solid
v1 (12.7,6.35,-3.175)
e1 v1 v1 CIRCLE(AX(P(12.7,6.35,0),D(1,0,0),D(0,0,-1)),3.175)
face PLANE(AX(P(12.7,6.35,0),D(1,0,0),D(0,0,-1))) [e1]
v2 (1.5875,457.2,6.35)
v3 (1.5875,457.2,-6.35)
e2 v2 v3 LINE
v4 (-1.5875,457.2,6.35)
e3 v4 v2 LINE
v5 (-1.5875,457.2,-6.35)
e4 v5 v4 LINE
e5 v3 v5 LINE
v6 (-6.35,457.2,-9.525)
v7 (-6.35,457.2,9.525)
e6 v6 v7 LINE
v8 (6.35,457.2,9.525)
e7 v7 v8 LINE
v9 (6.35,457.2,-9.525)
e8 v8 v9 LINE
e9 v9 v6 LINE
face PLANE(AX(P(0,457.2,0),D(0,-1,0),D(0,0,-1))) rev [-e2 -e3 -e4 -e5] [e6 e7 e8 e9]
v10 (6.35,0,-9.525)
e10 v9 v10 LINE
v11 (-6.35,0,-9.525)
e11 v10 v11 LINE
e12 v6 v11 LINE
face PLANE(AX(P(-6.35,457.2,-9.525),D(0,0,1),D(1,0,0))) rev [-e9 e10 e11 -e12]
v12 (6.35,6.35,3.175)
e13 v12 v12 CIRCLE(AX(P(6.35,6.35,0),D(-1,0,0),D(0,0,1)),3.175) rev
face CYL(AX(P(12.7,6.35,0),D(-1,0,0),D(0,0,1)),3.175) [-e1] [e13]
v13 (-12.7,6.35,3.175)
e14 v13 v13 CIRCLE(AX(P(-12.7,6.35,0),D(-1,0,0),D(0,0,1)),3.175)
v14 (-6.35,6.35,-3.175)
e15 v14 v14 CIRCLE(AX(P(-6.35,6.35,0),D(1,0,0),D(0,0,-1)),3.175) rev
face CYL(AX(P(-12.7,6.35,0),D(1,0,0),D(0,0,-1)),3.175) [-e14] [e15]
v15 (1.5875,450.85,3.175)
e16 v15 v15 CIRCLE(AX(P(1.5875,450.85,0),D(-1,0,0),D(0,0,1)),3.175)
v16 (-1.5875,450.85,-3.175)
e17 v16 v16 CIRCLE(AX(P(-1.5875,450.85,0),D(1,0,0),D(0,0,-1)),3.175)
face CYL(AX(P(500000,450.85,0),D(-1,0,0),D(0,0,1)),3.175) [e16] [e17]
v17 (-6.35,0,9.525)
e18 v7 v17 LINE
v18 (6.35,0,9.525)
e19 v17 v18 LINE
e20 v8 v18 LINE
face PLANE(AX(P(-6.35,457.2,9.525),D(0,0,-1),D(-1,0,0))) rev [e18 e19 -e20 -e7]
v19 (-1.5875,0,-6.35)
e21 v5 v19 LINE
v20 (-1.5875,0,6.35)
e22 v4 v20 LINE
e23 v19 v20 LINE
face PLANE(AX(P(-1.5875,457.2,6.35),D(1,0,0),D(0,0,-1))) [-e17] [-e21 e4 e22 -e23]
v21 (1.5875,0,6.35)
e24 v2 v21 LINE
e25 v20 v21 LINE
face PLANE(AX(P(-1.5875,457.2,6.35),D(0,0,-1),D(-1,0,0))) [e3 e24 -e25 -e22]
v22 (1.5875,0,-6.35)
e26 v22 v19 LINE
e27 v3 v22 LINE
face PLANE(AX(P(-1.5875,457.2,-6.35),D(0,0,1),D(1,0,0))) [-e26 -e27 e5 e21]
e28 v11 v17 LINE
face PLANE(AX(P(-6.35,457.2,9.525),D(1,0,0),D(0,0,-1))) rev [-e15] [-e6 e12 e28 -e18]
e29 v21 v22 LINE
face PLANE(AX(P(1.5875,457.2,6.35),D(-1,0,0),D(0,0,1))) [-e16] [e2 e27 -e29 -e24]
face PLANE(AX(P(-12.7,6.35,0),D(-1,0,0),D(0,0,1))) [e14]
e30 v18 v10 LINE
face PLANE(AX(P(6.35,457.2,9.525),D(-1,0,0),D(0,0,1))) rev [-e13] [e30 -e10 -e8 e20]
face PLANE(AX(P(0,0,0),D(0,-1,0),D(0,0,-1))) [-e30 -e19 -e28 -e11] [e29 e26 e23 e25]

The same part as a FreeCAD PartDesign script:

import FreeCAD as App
import Part
import Sketcher
Q = App.Units.Quantity

doc = App.newDocument("Part")
params = doc.addObject("Spreadsheet::Sheet", "Params")
for row, (alias, value) in enumerate([
    ("sketch1_width", "0.5 in"),
    ("sketch1_height", "0.75 in"),
    ("sketch1_width2", "0.125 in"),
    ("pad1_length", "18 in"),
    ("sketch2_diameter", "0.25 in"),
    ("sketch3_diameter", "0.25 in"),
    ("pad3_length", "0.25 in"),
    ("sketch4_diameter", "0.25 in"),
    ("pad4_length", "0.25 in"),
], start=1):
    params.set(f"A{row}", alias)
    params.set(f"B{row}", "=" + value)
    params.setAlias(f"B{row}", alias)

body = doc.addObject("PartDesign::Body", "Body")

# Sketch on XZ plane
sketch1 = doc.addObject("Sketcher::SketchObject", "Sketch")
body.addObject(sketch1)
sketch1.AttachmentSupport = (doc.XZ_Plane, [""])
sketch1.MapMode = "FlatFace"
sketch1.addGeometry([
    Part.LineSegment(App.Vector(-6.35, -9.525, 0), App.Vector(-6.35, 9.525, 0)),  # 0
    Part.LineSegment(App.Vector(-6.35, 9.525, 0), App.Vector(6.35, 9.525, 0)),  # 1
    Part.LineSegment(App.Vector(6.35, 9.525, 0), App.Vector(6.35, -9.525, 0)),  # 2
    Part.LineSegment(App.Vector(6.35, -9.525, 0), App.Vector(-6.35, -9.525, 0)),  # 3
    Part.LineSegment(App.Vector(1.5875, 6.35, 0), App.Vector(-1.5875, 6.35, 0)),  # 4
    Part.LineSegment(App.Vector(-1.5875, 6.35, 0), App.Vector(-1.5875, -6.35, 0)),  # 5
    Part.LineSegment(App.Vector(-1.5875, -6.35, 0), App.Vector(1.5875, -6.35, 0)),  # 6
    Part.LineSegment(App.Vector(1.5875, -6.35, 0), App.Vector(1.5875, 6.35, 0)),  # 7
], False)
sketch1.addConstraint([
    Sketcher.Constraint("Coincident", 0, 2, 1, 1),
    Sketcher.Constraint("Coincident", 1, 2, 2, 1),
    Sketcher.Constraint("Coincident", 2, 2, 3, 1),
    Sketcher.Constraint("Coincident", 3, 2, 0, 1),
    Sketcher.Constraint("Coincident", 4, 2, 5, 1),
    Sketcher.Constraint("Coincident", 5, 2, 6, 1),
    Sketcher.Constraint("Coincident", 6, 2, 7, 1),
    Sketcher.Constraint("Coincident", 7, 2, 4, 1),
    Sketcher.Constraint("Vertical", 0),
    Sketcher.Constraint("Horizontal", 1),
    Sketcher.Constraint("Vertical", 2),
    Sketcher.Constraint("Horizontal", 3),
    Sketcher.Constraint("Horizontal", 4),
    Sketcher.Constraint("Vertical", 5),
    Sketcher.Constraint("Horizontal", 6),
    Sketcher.Constraint("Vertical", 7),
    Sketcher.Constraint("Symmetric", 0, 2, 2, 2, -1, 1),
    Sketcher.Constraint("Symmetric", 4, 2, 6, 2, -1, 1),
    Sketcher.Constraint("Equal", 3, 5),
    Sketcher.Constraint("DistanceX", 1, 1, 1, 2, Q("0.5 in")),
    Sketcher.Constraint("DistanceY", 0, 1, 0, 2, Q("0.75 in")),
    Sketcher.Constraint("DistanceX", 4, 2, 4, 1, Q("0.125 in")),
])
sketch1.setExpression("Constraints[19]", "Params.sketch1_width")
sketch1.setExpression("Constraints[20]", "Params.sketch1_height")
sketch1.setExpression("Constraints[21]", "Params.sketch1_width2")
pad1 = doc.addObject("PartDesign::Pad", "Pad")
body.addObject(pad1)
pad1.Profile = sketch1
pad1.setExpression("Length", "Params.pad1_length")
pad1.Reversed = True

# Sketch on YZ plane
sketch2 = doc.addObject("Sketcher::SketchObject", "Sketch001")
body.addObject(sketch2)
sketch2.AttachmentSupport = (doc.YZ_Plane, [""])
sketch2.MapMode = "FlatFace"
sketch2.AttachmentOffset = App.Placement(App.Vector(0, 0, -0.0625 * 25.4), App.Rotation())
sketch2.addGeometry(Part.Circle(App.Vector(450.85, 0, 0), App.Vector(0, 0, 1), 3.175), False)
sketch2.addConstraint([
    Sketcher.Constraint("PointOnObject", 0, 3, -1),
    Sketcher.Constraint("Diameter", 0, Q("0.25 in")),
    Sketcher.Constraint("DistanceX", -1, 1, 0, 3, Q("17.75 in")),
])
sketch2.setExpression("Constraints[1]", "Params.sketch2_diameter")
pad2 = doc.addObject("PartDesign::Pad", "Pad001")
body.addObject(pad2)
pad2.Profile = sketch2
pad2.Type = "UpToFirst"

# Sketch on YZ plane
sketch3 = doc.addObject("Sketcher::SketchObject", "Sketch002")
body.addObject(sketch3)
sketch3.AttachmentSupport = (doc.YZ_Plane, [""])
sketch3.MapMode = "FlatFace"
sketch3.AttachmentOffset = App.Placement(App.Vector(0, 0, 0.25 * 25.4), App.Rotation())
sketch3.addGeometry(Part.Circle(App.Vector(6.35, 0, 0), App.Vector(0, 0, 1), 3.175), False)
sketch3.addConstraint([
    Sketcher.Constraint("PointOnObject", 0, 3, -1),
    Sketcher.Constraint("Diameter", 0, Q("0.25 in")),
    Sketcher.Constraint("DistanceX", -1, 1, 0, 3, Q("0.25 in")),
])
sketch3.setExpression("Constraints[1]", "Params.sketch3_diameter")
pad3 = doc.addObject("PartDesign::Pad", "Pad002")
body.addObject(pad3)
pad3.Profile = sketch3
pad3.setExpression("Length", "Params.pad3_length")

# Sketch on YZ plane
sketch4 = doc.addObject("Sketcher::SketchObject", "Sketch003")
body.addObject(sketch4)
sketch4.AttachmentSupport = (doc.YZ_Plane, [""])
sketch4.MapMode = "FlatFace"
sketch4.AttachmentOffset = App.Placement(App.Vector(0, 0, -0.5 * 25.4), App.Rotation())
sketch4.addGeometry(Part.Circle(App.Vector(6.35, 0, 0), App.Vector(0, 0, 1), 3.175), False)
sketch4.addConstraint([
    Sketcher.Constraint("PointOnObject", 0, 3, -1),
    Sketcher.Constraint("Diameter", 0, Q("0.25 in")),
    Sketcher.Constraint("DistanceX", -1, 1, 0, 3, Q("0.25 in")),
])
sketch4.setExpression("Constraints[1]", "Params.sketch4_diameter")
pad4 = doc.addObject("PartDesign::Pad", "Pad003")
body.addObject(pad4)
pad4.Profile = sketch4
pad4.setExpression("Length", "Params.pad4_length")

doc.recompute()
